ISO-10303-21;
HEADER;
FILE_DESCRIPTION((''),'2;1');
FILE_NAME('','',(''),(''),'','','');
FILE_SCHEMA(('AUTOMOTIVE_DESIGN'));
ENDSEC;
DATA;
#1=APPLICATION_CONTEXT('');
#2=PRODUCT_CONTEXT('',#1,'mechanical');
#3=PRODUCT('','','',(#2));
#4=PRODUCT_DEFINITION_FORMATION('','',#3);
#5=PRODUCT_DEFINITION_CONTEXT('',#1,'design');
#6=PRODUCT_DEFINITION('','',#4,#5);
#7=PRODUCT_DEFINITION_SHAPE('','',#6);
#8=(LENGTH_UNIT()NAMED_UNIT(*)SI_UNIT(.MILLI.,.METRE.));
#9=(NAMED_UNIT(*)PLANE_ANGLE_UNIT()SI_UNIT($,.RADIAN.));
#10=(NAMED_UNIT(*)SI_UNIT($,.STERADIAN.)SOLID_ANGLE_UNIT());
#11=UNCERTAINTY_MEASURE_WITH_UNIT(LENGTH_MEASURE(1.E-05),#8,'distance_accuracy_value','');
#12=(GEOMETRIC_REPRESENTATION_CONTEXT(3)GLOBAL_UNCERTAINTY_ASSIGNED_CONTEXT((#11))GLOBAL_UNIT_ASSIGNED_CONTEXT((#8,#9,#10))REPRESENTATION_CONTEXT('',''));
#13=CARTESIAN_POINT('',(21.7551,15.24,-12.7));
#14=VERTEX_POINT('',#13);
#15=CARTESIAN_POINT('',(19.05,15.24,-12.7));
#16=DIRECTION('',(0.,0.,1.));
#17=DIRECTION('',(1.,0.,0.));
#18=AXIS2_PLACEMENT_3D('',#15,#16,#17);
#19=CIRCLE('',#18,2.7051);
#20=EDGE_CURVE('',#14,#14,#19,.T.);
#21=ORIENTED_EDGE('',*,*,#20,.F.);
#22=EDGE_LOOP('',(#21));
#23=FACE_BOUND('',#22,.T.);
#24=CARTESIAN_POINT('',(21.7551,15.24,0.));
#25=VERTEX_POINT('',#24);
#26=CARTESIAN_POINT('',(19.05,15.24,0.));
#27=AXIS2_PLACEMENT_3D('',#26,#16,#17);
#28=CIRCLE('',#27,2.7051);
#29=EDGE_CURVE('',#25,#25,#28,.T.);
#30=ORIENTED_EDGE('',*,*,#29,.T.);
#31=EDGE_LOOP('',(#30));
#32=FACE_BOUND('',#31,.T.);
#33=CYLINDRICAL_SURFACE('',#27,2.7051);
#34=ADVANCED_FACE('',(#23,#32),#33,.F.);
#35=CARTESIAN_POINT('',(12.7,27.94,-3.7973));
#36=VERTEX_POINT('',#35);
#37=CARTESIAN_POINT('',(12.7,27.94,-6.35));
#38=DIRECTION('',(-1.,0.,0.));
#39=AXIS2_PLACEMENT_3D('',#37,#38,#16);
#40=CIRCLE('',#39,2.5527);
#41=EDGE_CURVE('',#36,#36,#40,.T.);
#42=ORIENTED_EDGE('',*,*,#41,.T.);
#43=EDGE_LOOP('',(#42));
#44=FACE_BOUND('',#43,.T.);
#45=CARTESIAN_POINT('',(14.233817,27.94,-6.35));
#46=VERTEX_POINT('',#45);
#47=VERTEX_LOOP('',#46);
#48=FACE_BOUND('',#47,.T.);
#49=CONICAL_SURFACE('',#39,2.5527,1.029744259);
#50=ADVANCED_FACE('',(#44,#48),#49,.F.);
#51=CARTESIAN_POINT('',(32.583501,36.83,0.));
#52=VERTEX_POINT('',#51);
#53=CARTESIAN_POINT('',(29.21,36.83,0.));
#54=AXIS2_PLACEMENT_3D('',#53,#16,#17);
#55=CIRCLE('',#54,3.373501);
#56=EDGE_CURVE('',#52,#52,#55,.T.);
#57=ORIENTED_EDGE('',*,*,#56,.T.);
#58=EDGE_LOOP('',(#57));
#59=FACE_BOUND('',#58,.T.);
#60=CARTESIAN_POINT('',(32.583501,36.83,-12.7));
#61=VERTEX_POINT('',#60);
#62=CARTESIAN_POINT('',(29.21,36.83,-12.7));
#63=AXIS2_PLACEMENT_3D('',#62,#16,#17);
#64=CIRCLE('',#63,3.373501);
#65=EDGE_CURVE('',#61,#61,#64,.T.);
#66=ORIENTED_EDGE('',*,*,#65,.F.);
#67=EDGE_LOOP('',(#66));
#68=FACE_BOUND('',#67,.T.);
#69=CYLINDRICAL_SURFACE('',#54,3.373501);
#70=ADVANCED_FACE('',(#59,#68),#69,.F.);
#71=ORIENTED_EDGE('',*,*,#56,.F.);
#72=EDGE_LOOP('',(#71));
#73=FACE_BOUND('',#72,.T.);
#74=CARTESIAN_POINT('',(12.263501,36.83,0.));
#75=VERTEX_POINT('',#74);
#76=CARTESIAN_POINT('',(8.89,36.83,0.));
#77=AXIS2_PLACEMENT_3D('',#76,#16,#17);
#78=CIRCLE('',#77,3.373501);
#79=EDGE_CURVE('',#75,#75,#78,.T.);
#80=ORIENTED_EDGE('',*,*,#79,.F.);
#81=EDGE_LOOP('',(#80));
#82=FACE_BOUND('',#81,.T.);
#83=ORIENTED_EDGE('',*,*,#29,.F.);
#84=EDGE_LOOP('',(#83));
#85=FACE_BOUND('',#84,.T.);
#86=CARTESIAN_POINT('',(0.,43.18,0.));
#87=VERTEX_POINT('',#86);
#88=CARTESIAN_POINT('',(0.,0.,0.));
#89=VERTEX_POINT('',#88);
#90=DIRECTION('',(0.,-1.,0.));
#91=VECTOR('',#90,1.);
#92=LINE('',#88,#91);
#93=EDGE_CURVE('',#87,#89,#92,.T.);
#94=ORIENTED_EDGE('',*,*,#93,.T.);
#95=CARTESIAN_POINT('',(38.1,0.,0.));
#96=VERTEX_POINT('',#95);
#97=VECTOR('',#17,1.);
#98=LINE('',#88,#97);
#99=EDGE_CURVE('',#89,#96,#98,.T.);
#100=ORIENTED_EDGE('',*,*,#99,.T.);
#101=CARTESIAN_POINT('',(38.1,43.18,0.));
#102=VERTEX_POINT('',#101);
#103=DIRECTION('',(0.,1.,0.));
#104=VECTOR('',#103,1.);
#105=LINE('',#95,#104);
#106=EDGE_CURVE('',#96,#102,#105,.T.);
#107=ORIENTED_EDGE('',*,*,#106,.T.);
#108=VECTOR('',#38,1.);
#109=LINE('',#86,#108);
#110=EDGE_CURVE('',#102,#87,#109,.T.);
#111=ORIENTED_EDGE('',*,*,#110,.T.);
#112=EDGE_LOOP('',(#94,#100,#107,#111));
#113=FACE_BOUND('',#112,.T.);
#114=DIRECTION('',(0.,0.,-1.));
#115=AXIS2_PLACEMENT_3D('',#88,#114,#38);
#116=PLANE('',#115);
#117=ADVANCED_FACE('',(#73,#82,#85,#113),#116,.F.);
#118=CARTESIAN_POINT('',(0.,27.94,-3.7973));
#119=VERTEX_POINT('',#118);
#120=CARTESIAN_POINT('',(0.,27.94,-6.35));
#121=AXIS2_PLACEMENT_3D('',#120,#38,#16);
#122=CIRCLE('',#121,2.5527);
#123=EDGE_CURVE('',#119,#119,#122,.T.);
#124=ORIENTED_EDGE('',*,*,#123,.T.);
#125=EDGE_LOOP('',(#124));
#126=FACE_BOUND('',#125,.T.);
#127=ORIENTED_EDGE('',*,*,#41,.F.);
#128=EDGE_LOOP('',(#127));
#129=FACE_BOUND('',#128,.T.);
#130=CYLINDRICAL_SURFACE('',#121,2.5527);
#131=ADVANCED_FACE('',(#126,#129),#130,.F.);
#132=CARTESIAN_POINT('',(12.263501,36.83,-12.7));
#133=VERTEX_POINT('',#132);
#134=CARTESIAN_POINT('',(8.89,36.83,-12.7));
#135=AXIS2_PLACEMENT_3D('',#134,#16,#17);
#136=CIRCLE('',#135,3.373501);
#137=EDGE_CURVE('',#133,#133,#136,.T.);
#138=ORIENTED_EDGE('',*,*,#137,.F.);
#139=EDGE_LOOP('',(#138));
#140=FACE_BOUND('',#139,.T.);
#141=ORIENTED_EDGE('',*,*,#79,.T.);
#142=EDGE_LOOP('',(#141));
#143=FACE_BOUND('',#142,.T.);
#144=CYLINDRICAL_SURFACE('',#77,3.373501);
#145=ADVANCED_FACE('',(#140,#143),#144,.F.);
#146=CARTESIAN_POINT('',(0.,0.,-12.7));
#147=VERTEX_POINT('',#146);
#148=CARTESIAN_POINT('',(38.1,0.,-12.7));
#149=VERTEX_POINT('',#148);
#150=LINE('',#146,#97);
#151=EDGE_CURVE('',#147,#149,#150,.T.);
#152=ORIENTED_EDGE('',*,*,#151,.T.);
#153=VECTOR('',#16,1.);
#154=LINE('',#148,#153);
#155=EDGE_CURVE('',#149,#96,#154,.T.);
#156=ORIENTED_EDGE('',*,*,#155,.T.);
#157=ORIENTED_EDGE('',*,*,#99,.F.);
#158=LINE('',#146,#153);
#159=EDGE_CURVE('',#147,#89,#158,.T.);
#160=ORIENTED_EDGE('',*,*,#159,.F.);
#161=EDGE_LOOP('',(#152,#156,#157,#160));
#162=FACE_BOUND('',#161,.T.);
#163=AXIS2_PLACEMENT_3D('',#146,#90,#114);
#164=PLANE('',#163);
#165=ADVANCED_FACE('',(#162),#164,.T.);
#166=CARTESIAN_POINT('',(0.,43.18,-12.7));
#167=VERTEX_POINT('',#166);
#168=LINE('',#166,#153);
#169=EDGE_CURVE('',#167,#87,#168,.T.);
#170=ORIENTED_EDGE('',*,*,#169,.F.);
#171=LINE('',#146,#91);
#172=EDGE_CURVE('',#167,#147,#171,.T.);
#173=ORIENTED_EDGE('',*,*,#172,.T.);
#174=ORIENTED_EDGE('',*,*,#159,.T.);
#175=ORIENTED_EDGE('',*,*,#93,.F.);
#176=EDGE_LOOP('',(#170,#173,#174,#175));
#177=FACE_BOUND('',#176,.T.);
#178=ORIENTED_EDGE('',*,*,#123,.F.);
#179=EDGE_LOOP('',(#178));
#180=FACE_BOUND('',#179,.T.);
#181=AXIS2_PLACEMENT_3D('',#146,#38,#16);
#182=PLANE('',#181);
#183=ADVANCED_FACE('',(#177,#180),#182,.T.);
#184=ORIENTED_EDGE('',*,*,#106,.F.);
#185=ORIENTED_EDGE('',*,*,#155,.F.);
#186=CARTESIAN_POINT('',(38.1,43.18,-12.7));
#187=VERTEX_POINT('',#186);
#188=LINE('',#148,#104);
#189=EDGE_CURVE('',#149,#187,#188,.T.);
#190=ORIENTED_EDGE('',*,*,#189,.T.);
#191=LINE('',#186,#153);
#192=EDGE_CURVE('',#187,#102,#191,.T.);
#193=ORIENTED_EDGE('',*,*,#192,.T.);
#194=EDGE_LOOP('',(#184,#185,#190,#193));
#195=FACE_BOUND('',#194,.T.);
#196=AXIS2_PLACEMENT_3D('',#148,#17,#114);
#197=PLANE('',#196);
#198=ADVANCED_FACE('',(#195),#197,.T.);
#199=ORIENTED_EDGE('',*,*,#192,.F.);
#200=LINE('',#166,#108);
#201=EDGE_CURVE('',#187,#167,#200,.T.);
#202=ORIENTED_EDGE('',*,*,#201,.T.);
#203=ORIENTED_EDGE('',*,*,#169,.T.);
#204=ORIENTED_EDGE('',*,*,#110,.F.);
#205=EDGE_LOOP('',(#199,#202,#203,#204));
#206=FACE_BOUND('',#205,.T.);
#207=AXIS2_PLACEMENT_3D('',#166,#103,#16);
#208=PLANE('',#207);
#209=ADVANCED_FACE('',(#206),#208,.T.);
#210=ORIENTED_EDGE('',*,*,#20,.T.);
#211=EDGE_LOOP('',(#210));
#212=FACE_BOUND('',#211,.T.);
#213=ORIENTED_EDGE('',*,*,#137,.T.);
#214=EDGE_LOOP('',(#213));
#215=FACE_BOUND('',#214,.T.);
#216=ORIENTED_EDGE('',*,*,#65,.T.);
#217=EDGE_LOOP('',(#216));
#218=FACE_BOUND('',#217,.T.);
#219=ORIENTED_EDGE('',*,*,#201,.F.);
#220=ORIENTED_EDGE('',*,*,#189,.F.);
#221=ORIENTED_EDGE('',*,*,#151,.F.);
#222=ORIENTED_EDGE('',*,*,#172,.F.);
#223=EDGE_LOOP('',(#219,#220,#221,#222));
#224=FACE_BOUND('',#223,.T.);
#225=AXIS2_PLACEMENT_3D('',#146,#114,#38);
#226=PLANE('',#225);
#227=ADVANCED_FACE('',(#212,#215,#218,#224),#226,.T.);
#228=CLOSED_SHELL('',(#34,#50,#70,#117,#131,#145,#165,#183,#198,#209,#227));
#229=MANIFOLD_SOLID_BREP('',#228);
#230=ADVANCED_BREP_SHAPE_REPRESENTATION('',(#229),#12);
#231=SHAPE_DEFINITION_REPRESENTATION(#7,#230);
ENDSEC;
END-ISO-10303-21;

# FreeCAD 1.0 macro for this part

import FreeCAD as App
import Part
import Sketcher
Q = App.Units.Quantity

doc = App.newDocument("Part")
body = doc.addObject("PartDesign::Body", "Body")

# Sketch on XY plane
sketch1 = doc.addObject("Sketcher::SketchObject", "Sketch")
body.addObject(sketch1)
sketch1.AttachmentSupport = (doc.XY_Plane, [""])
sketch1.MapMode = "FlatFace"
sketch1.addGeometry([
    Part.LineSegment(App.Vector(0, 43, 0), App.Vector(0, 0, 0)),
    Part.LineSegment(App.Vector(0, 0, 0), App.Vector(38, 0, 0)),
    Part.LineSegment(App.Vector(38, 0, 0), App.Vector(38, 43, 0)),
    Part.LineSegment(App.Vector(38, 43, 0), App.Vector(0, 43, 0)),
], False)
sketch1.addConstraint([
    Sketcher.Constraint("Coincident", 0, 2, 1, 1),
    Sketcher.Constraint("Coincident", 1, 2, 2, 1),
    Sketcher.Constraint("Coincident", 2, 2, 3, 1),
    Sketcher.Constraint("Coincident", 3, 2, 0, 1),
    Sketcher.Constraint("Vertical", 0),
    Sketcher.Constraint("Horizontal", 1),
    Sketcher.Constraint("Vertical", 2),
    Sketcher.Constraint("Horizontal", 3),
    Sketcher.Constraint("Coincident", 0, 2, -1, 1),
    Sketcher.Constraint("DistanceX", 1, 1, 1, 2, Q("1.5 in")),
    Sketcher.Constraint("DistanceY", 0, 2, 0, 1, Q("1.7 in")),
])
pad1 = doc.addObject("PartDesign::Pad", "Pad")
body.addObject(pad1)
pad1.Profile = sketch1
pad1.Length = Q("0.5 in")
pad1.Reversed = True

# Sketch on XY plane
sketch2 = doc.addObject("Sketcher::SketchObject", "Sketch001")
body.addObject(sketch2)
sketch2.AttachmentSupport = (doc.XY_Plane, [""])
sketch2.MapMode = "FlatFace"
sketch2.addGeometry([
    Part.Circle(App.Vector(29.2, 36.8, 0), App.Vector(0, 0, 1), 3.4),
    Part.Circle(App.Vector(8.9, 36.8, 0), App.Vector(0, 0, 1), 3.4),
], False)
sketch2.addConstraint([
    Sketcher.Constraint("Equal", 0, 1),
    Sketcher.Constraint("Horizontal", 0, 3, 1, 3),
    Sketcher.Constraint("DistanceX", 1, 3, 0, 3, Q("0.8 in")),
    Sketcher.Constraint("DistanceX", -1, 1, 0, 3, Q("1.15 in")),
    Sketcher.Constraint("DistanceY", -1, 1, 0, 3, Q("1.45 in")),
    Sketcher.Constraint("Diameter", 0, Q("6.747002 mm")),
])
doc.recompute()
hole = doc.addObject("PartDesign::Hole", "Hole")
body.addObject(hole)
hole.Profile = sketch2
hole.ThreadType = "None"
hole.Diameter = 6.747002
hole.DepthType = "ThroughAll"

# Sketch on YZ plane
sketch3 = doc.addObject("Sketcher::SketchObject", "Sketch002")
body.addObject(sketch3)
sketch3.AttachmentSupport = (doc.YZ_Plane, [""])
sketch3.MapMode = "FlatFace"
sketch3.addGeometry(Part.Circle(App.Vector(27.9, -6.3, 0), App.Vector(0, 0, 1), 2.6), False)
sketch3.addConstraint([
    Sketcher.Constraint("Diameter", 0, Q("0.201 in")),
    Sketcher.Constraint("DistanceX", -1, 1, 0, 3, Q("1.1 in")),
    Sketcher.Constraint("DistanceY", 0, 3, -1, 1, Q("0.25 in")),
])
doc.recompute()
hole2 = doc.addObject("PartDesign::Hole", "Hole001")
body.addObject(hole2)
hole2.Profile = sketch3
hole2.ThreadType = "None"
hole2.Diameter = Q("0.201 in")
hole2.DepthType = "Dimension"
hole2.Depth = Q("0.5 in")
hole2.DrillPoint = "Angled"
hole2.DrillPointAngle = 118
hole2.Reversed = True

# Sketch on XY plane
sketch4 = doc.addObject("Sketcher::SketchObject", "Sketch003")
body.addObject(sketch4)
sketch4.AttachmentSupport = (doc.XY_Plane, [""])
sketch4.MapMode = "FlatFace"
sketch4.addGeometry(Part.Circle(App.Vector(19.1, 15.2, 0), App.Vector(0, 0, 1), 2.7), False)
sketch4.addConstraint([
    Sketcher.Constraint("Diameter", 0, Q("0.213 in")),
    Sketcher.Constraint("DistanceY", -1, 1, 0, 3, Q("0.6 in")),
    Sketcher.Constraint("DistanceX", -1, 1, 0, 3, Q("0.75 in")),
])
doc.recompute()
hole3 = doc.addObject("PartDesign::Hole", "Hole002")
body.addObject(hole3)
hole3.Profile = sketch4
hole3.ThreadType = "None"
hole3.Diameter = Q("0.213 in")
hole3.DepthType = "ThroughAll"

doc.recompute()
